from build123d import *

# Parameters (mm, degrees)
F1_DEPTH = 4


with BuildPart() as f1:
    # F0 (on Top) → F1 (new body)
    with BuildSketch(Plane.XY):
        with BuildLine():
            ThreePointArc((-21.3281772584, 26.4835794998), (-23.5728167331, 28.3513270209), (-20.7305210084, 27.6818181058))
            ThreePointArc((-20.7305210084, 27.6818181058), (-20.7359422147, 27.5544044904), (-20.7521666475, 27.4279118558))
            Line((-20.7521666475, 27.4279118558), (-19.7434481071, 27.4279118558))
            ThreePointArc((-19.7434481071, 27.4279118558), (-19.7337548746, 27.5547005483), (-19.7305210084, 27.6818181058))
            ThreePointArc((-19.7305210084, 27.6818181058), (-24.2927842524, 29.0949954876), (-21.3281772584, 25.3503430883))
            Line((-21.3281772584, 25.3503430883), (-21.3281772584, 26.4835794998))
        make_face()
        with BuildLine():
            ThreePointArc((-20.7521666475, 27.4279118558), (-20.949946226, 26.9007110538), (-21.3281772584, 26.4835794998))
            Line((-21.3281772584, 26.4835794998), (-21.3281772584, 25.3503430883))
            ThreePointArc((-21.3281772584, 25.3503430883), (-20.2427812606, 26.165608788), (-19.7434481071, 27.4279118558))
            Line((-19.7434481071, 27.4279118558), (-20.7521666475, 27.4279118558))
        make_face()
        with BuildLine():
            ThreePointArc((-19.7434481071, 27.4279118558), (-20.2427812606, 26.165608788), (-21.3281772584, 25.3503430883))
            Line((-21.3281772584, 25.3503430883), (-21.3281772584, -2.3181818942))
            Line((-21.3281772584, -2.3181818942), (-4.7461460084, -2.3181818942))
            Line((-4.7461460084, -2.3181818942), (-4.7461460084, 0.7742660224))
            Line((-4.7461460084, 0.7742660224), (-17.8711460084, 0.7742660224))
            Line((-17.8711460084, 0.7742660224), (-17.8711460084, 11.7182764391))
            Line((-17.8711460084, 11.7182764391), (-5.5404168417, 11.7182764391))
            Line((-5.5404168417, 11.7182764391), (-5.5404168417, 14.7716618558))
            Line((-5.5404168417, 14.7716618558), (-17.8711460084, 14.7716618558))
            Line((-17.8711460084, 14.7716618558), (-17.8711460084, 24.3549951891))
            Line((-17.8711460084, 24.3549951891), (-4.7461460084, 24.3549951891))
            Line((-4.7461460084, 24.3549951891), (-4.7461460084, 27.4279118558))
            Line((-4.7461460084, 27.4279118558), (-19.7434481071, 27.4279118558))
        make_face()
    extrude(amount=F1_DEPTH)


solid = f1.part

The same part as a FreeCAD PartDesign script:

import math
import FreeCAD as App
import Part
import Sketcher

V = App.Vector

doc = App.newDocument("Part")
body = doc.addObject("PartDesign::Body", "Body")

sketch1 = body.newObject("Sketcher::SketchObject", "Sketch")
sketch1.AttachmentSupport = (doc.getObject("XY_Plane"), [""])
sketch1.MapMode = "FlatFace"
sketch1.addGeometry(Part.ArcOfCircle(Part.Circle(V(-22.23, 27.68, 0), V(0, 0, 1), 2.5), math.radians(-5.83), math.radians(0)), False)
sketch1.addGeometry(Part.ArcOfCircle(Part.Circle(V(-22.23, 27.68, 0), V(0, 0, 1), 2.5), math.radians(0), math.radians(291)), False)
sketch1.addGeometry(Part.LineSegment(V(-21.33, 25.35, 0), V(-21.33, -2.32, 0)), False)
sketch1.addGeometry(Part.LineSegment(V(-21.33, -2.32, 0), V(-4.75, -2.32, 0)), False)
sketch1.addGeometry(Part.LineSegment(V(-4.75, -2.32, 0), V(-4.75, 0.77, 0)), False)
sketch1.addGeometry(Part.LineSegment(V(-4.75, 0.77, 0), V(-17.87, 0.77, 0)), False)
sketch1.addGeometry(Part.LineSegment(V(-17.87, 0.77, 0), V(-17.87, 11.72, 0)), False)
sketch1.addGeometry(Part.LineSegment(V(-17.87, 11.72, 0), V(-5.54, 11.72, 0)), False)
sketch1.addGeometry(Part.LineSegment(V(-5.54, 11.72, 0), V(-5.54, 14.77, 0)), False)
sketch1.addGeometry(Part.LineSegment(V(-5.54, 14.77, 0), V(-17.87, 14.77, 0)), False)
sketch1.addGeometry(Part.LineSegment(V(-17.87, 14.77, 0), V(-17.87, 24.35, 0)), False)
sketch1.addGeometry(Part.LineSegment(V(-17.87, 24.35, 0), V(-4.75, 24.35, 0)), False)
sketch1.addGeometry(Part.LineSegment(V(-4.75, 24.35, 0), V(-4.75, 27.43, 0)), False)
sketch1.addGeometry(Part.LineSegment(V(-4.75, 27.43, 0), V(-19.74, 27.43, 0)), False)
sketch1.addGeometry(Part.ArcOfCircle(Part.Circle(V(-22.23, 27.68, 0), V(0, 0, 1), 1.5), math.radians(0), math.radians(307)), False)
sketch1.addGeometry(Part.ArcOfCircle(Part.Circle(V(-22.23, 27.68, 0), V(0, 0, 1), 1.5), math.radians(-9.75), math.radians(0)), False)
sketch1.addGeometry(Part.ArcOfCircle(Part.Circle(V(-22.23, 27.68, 0), V(0, 0, 1), 1.5), math.radians(-53), math.radians(-10)), False)
sketch1.addConstraint(Sketcher.Constraint("Tangent", 0, 2, 1, 1))
sketch1.addConstraint(Sketcher.Constraint("Coincident", 1, 2, 2, 1))
sketch1.addConstraint(Sketcher.Constraint("Coincident", 2, 2, 3, 1))
sketch1.addConstraint(Sketcher.Constraint("Coincident", 3, 2, 4, 1))
sketch1.addConstraint(Sketcher.Constraint("Coincident", 4, 2, 5, 1))
sketch1.addConstraint(Sketcher.Constraint("Coincident", 5, 2, 6, 1))
sketch1.addConstraint(Sketcher.Constraint("Coincident", 6, 2, 7, 1))
sketch1.addConstraint(Sketcher.Constraint("Coincident", 7, 2, 8, 1))
sketch1.addConstraint(Sketcher.Constraint("Coincident", 8, 2, 9, 1))
sketch1.addConstraint(Sketcher.Constraint("Coincident", 9, 2, 10, 1))
sketch1.addConstraint(Sketcher.Constraint("Coincident", 10, 2, 11, 1))
sketch1.addConstraint(Sketcher.Constraint("Coincident", 11, 2, 12, 1))
sketch1.addConstraint(Sketcher.Constraint("Coincident", 12, 2, 13, 1))
sketch1.addConstraint(Sketcher.Constraint("Coincident", 13, 2, 0, 1))
sketch1.addConstraint(Sketcher.Constraint("Tangent", 14, 1, 15, 2))
sketch1.addConstraint(Sketcher.Constraint("Tangent", 15, 1, 16, 2))
sketch1.addConstraint(Sketcher.Constraint("Tangent", 16, 1, 14, 2))
sketch1.addConstraint(Sketcher.Constraint("Vertical", 2))
sketch1.addConstraint(Sketcher.Constraint("Horizontal", 3))
sketch1.addConstraint(Sketcher.Constraint("Vertical", 4))
sketch1.addConstraint(Sketcher.Constraint("Horizontal", 5))
sketch1.addConstraint(Sketcher.Constraint("Vertical", 6))
sketch1.addConstraint(Sketcher.Constraint("Horizontal", 7))
sketch1.addConstraint(Sketcher.Constraint("Vertical", 8))
sketch1.addConstraint(Sketcher.Constraint("Horizontal", 9))
sketch1.addConstraint(Sketcher.Constraint("Vertical", 10))
sketch1.addConstraint(Sketcher.Constraint("Horizontal", 11))
sketch1.addConstraint(Sketcher.Constraint("Vertical", 12))
sketch1.addConstraint(Sketcher.Constraint("Horizontal", 13))
sketch1.addConstraint(Sketcher.Constraint("Coincident", 14, 3, 0, 3))
sketch1.addConstraint(Sketcher.Constraint("Equal", 0, 1))
sketch1.addConstraint(Sketcher.Constraint("Horizontal", 16, 3, 0, 2))
sketch1.addConstraint(Sketcher.Constraint("Horizontal", 0, 2, 14, 1))
sketch1.addConstraint(Sketcher.Constraint("Horizontal", 13, 2, 15, 1))
sketch1.addConstraint(Sketcher.Constraint("Vertical", 6, 2, 9, 2))
sketch1.addConstraint(Sketcher.Constraint("Vertical", 4, 2, 11, 2))
sketch1.addConstraint(Sketcher.Constraint("Vertical", 2, 2, 16, 1))
sketch1.addConstraint(Sketcher.Constraint("Radius", 0, 2.5))
sketch1.addConstraint(Sketcher.Constraint("Radius", 14, 1.5))
sketch1.addConstraint(Sketcher.Constraint("DistanceY", 2, 2, 0, 3, 30.0))
sketch1.addConstraint(Sketcher.Constraint("DistanceX", 5, 2, 5, 1, 13.125))
sketch1.addConstraint(Sketcher.Constraint("DistanceX", 3, 1, 3, 2, 16.582031))
sketch1.addConstraint(Sketcher.Constraint("DistanceX", 7, 1, 7, 2, 12.330729))
sketch1.addConstraint(Sketcher.Constraint("DistanceY", 6, 1, 6, 2, 10.94401))
sketch1.addConstraint(Sketcher.Constraint("DistanceX", 13, 2, 13, 1, 14.997302))
sketch1.addConstraint(Sketcher.Constraint("DistanceY", 2, 2, 2, 1, 27.668525))
sketch1.addConstraint(Sketcher.Constraint("DistanceY", 4, 1, 4, 2, 3.092448))
sketch1.addConstraint(Sketcher.Constraint("DistanceY", 8, 1, 8, 2, 3.053385))
sketch1.addConstraint(Sketcher.Constraint("DistanceY", 10, 1, 10, 2, 9.583333))
sketch1.addConstraint(Sketcher.Constraint("DistanceX", 0, 3, -1, 1, 22.230521))
sketch1.addConstraint(Sketcher.Constraint("DistanceY", -1, 1, 0, 3, 27.681818))
pad1 = body.newObject("PartDesign::Pad", "Pad")
pad1.Profile = sketch1
pad1.Length = 4

doc.recompute()
